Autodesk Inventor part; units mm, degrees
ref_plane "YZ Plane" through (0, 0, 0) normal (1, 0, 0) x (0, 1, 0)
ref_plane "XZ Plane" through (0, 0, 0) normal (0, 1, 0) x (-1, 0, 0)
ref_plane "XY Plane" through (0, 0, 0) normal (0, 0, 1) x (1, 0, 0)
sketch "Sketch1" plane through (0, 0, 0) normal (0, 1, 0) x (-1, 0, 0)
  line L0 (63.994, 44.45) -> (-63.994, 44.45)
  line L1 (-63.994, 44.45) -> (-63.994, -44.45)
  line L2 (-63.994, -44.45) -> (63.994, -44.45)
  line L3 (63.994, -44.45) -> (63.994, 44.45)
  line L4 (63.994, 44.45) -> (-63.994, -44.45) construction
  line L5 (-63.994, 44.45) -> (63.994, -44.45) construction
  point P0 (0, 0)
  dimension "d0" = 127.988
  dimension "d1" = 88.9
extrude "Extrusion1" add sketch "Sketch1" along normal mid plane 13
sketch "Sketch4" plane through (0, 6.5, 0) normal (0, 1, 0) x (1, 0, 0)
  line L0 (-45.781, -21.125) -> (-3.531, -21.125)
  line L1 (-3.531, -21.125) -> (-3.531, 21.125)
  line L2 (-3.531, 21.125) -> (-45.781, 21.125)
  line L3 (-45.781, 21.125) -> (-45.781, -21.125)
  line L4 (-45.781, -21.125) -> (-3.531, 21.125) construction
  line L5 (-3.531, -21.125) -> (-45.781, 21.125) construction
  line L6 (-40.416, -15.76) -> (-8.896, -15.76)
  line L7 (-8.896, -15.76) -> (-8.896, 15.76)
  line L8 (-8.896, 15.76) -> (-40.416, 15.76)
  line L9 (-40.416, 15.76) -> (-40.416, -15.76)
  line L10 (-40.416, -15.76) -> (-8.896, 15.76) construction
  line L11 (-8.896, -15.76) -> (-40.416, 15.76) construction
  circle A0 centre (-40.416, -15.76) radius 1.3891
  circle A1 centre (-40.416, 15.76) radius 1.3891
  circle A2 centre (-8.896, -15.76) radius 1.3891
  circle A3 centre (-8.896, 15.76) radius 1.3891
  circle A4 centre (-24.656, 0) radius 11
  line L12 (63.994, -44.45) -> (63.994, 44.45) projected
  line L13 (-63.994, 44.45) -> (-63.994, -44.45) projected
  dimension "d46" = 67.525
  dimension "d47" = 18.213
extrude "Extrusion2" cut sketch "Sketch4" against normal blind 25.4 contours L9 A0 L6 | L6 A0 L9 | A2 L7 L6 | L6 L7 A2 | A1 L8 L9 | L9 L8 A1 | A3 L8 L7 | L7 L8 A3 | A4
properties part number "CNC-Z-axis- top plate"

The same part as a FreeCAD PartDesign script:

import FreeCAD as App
import Part
import Sketcher
Q = App.Units.Quantity

doc = App.newDocument("Part")
params = doc.addObject("Spreadsheet::Sheet", "Params")
for row, (alias, value) in enumerate([
    ("sketch1_height", "3.5 in"),
    ("pad1_length", "0.511811 in"),
    ("sketch2_diameter", "0.109378 in"),
    ("pocket1_length", "1 in"),
], start=1):
    params.set(f"A{row}", alias)
    params.set(f"B{row}", "=" + value)
    params.setAlias(f"B{row}", alias)

body = doc.addObject("PartDesign::Body", "Body")

# Sketch on XZ plane
sketch1 = body.newObject("Sketcher::SketchObject", "Sketch")
sketch1.AttachmentSupport = (doc.getObject("XZ_Plane"), [""])
sketch1.MapMode = "FlatFace"
sketch1.addGeometry(Part.LineSegment(App.Vector(-64, -44, 0), App.Vector(-64, 44, 0)), False)
sketch1.addGeometry(Part.LineSegment(App.Vector(-64, 44, 0), App.Vector(64, 44, 0)), False)
sketch1.addGeometry(Part.LineSegment(App.Vector(64, 44, 0), App.Vector(64, -44, 0)), False)
sketch1.addGeometry(Part.LineSegment(App.Vector(64, -44, 0), App.Vector(-64, -44, 0)), False)
sketch1.addConstraint(Sketcher.Constraint("Coincident", 0, 2, 1, 1))
sketch1.addConstraint(Sketcher.Constraint("Coincident", 1, 2, 2, 1))
sketch1.addConstraint(Sketcher.Constraint("Coincident", 2, 2, 3, 1))
sketch1.addConstraint(Sketcher.Constraint("Coincident", 3, 2, 0, 1))
sketch1.addConstraint(Sketcher.Constraint("Vertical", 0))
sketch1.addConstraint(Sketcher.Constraint("Horizontal", 1))
sketch1.addConstraint(Sketcher.Constraint("Vertical", 2))
sketch1.addConstraint(Sketcher.Constraint("Horizontal", 3))
sketch1.addConstraint(Sketcher.Constraint("Symmetric", 0, 2, 2, 2, -1, 1))
sketch1.addConstraint(Sketcher.Constraint("DistanceY", 0, 1, 0, 2, Q("3.5 in")))
sketch1.addConstraint(Sketcher.Constraint("DistanceX", 1, 1, 1, 2, Q("5.0389 in")))
sketch1.setExpression("Constraints[9]", "Params.sketch1_height")
pad1 = body.newObject("PartDesign::Pad", "Pad")
pad1.Profile = sketch1
pad1.setExpression("Length", "Params.pad1_length")
pad1.Midplane = True

# Sketch on XZ plane
sketch2 = body.newObject("Sketcher::SketchObject", "Sketch001")
sketch2.AttachmentSupport = (doc.getObject("XZ_Plane"), [""])
sketch2.MapMode = "FlatFace"
sketch2.AttachmentOffset = App.Placement(App.Vector(0, 0, -0.2559055 * 25.4), App.Rotation())
sketch2.addGeometry(Part.Circle(App.Vector(-40.4, 15.8, 0), App.Vector(0, 0, 1), 1.4), False)
sketch2.addGeometry(Part.Circle(App.Vector(-8.9, 15.8, 0), App.Vector(0, 0, 1), 1.4), False)
sketch2.addGeometry(Part.Circle(App.Vector(-40.4, -15.8, 0), App.Vector(0, 0, 1), 1.4), False)
sketch2.addGeometry(Part.Circle(App.Vector(-8.9, -15.8, 0), App.Vector(0, 0, 1), 1.4), False)
sketch2.addGeometry(Part.Circle(App.Vector(-24.7, 0, 0), App.Vector(0, 0, 1), 11), False)
sketch2.addConstraint(Sketcher.Constraint("Equal", 0, 1))
sketch2.addConstraint(Sketcher.Constraint("Equal", 1, 2))
sketch2.addConstraint(Sketcher.Constraint("Equal", 2, 3))
sketch2.addConstraint(Sketcher.Constraint("Symmetric", 0, 3, 2, 3, -1))
sketch2.addConstraint(Sketcher.Constraint("Symmetric", 1, 3, 3, 3, -1))
sketch2.addConstraint(Sketcher.Constraint("PointOnObject", 4, 3, -1))
sketch2.addConstraint(Sketcher.Constraint("Horizontal", 0, 3, 1, 3))
sketch2.addConstraint(Sketcher.Constraint("Diameter", 0, Q("0.109378 in")))
sketch2.addConstraint(Sketcher.Constraint("Diameter", 4, 22.0))
sketch2.addConstraint(Sketcher.Constraint("DistanceX", 4, 3, -1, 1, Q("0.9707 in")))
sketch2.addConstraint(Sketcher.Constraint("DistanceX", 0, 3, -1, 1, 40.416))
sketch2.addConstraint(Sketcher.Constraint("DistanceY", -1, 1, 0, 3, 15.76))
sketch2.addConstraint(Sketcher.Constraint("DistanceX", 1, 3, -1, 1, 8.896))
sketch2.setExpression("Constraints[7]", "Params.sketch2_diameter")
pocket1 = body.newObject("PartDesign::Pocket", "Pocket")
pocket1.Profile = sketch2
pocket1.setExpression("Length", "Params.pocket1_length")
pocket1.Reversed = True

doc.recompute()
